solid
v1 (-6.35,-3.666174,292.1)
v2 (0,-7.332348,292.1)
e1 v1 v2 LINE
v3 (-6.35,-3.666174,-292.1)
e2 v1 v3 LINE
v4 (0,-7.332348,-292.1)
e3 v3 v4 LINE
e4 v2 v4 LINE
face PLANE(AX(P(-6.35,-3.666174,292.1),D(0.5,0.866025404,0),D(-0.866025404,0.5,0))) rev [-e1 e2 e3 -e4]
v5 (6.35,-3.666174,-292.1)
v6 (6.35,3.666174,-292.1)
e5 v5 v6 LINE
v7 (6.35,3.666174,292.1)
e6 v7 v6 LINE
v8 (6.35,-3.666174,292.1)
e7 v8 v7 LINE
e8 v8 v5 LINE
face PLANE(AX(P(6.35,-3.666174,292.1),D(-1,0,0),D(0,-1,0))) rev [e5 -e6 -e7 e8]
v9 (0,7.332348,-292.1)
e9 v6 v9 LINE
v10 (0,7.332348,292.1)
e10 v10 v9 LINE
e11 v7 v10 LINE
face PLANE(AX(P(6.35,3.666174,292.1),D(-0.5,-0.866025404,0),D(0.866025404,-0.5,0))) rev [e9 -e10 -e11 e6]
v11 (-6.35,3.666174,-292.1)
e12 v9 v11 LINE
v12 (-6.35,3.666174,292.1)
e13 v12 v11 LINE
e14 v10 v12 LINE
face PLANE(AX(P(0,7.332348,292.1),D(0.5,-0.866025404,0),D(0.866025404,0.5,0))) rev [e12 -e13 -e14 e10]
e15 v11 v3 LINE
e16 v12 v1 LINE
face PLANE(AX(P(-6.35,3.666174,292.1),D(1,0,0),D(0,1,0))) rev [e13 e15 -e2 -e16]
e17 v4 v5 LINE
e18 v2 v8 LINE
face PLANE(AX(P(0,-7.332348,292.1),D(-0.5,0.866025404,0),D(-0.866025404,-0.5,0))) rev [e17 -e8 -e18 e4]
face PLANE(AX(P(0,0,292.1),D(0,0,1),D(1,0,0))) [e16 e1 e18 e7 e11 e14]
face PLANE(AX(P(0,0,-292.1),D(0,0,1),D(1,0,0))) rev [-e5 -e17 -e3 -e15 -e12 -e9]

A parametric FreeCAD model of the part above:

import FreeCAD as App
import Part
import Sketcher

V = App.Vector
Q = App.Units.Quantity

doc = App.newDocument("Part")
body = doc.addObject("PartDesign::Body", "Body")

sketch1 = doc.addObject("Sketcher::SketchObject", "Sketch")
body.addObject(sketch1)
sketch1.AttachmentSupport = (doc.XY_Plane, [""])
sketch1.MapMode = "FlatFace"
sketch1.addGeometry(Part.LineSegment(V(0, 7.332348, 0), V(-6.35, 3.666174, 0)), False)
sketch1.addGeometry(Part.LineSegment(V(-6.35, 3.666174, 0), V(-6.35, -3.666174, 0)), False)
sketch1.addGeometry(Part.LineSegment(V(-6.35, -3.666174, 0), V(0, -7.332348, 0)), False)
sketch1.addGeometry(Part.LineSegment(V(0, -7.332348, 0), V(6.35, -3.666174, 0)), False)
sketch1.addGeometry(Part.LineSegment(V(6.35, -3.666174, 0), V(6.35, 3.666174, 0)), False)
sketch1.addGeometry(Part.LineSegment(V(6.35, 3.666174, 0), V(0, 7.332348, 0)), False)
sketch1.addConstraint(Sketcher.Constraint("Coincident", 0, 2, 1, 1))
sketch1.addConstraint(Sketcher.Constraint("Coincident", 1, 2, 2, 1))
sketch1.addConstraint(Sketcher.Constraint("Coincident", 2, 2, 3, 1))
sketch1.addConstraint(Sketcher.Constraint("Coincident", 3, 2, 4, 1))
sketch1.addConstraint(Sketcher.Constraint("Coincident", 4, 2, 5, 1))
sketch1.addConstraint(Sketcher.Constraint("Coincident", 5, 2, 0, 1))
sketch1.addConstraint(Sketcher.Constraint("Vertical", 1))
sketch1.addConstraint(Sketcher.Constraint("Vertical", 4))
sketch1.addConstraint(Sketcher.Constraint("Symmetric", 0, 2, 3, 2, -1, 1))
sketch1.addConstraint(Sketcher.Constraint("Symmetric", 2, 2, 5, 2, -1, 1))
sketch1.addConstraint(Sketcher.Constraint("PointOnObject", 2, 2, -2))
sketch1.addConstraint(Sketcher.Constraint("Parallel", 2, 5))
sketch1.addConstraint(Sketcher.Constraint("Horizontal", 1, 2, 3, 2))
sketch1.addConstraint(Sketcher.Constraint("Angle", 0, Q("-150 deg")))
sketch1.addConstraint(Sketcher.Constraint("DistanceX", 1, 2, 3, 2, Q("0.5 in")))
sketch1.addConstraint(Sketcher.Constraint("DistanceY", 1, 2, 1, 1, Q("7.332348 mm")))
pad1 = doc.addObject("PartDesign::Pad", "Pad")
body.addObject(pad1)
pad1.Profile = sketch1
pad1.Length = Q("23 in")
pad1.Midplane = True

doc.recompute()
